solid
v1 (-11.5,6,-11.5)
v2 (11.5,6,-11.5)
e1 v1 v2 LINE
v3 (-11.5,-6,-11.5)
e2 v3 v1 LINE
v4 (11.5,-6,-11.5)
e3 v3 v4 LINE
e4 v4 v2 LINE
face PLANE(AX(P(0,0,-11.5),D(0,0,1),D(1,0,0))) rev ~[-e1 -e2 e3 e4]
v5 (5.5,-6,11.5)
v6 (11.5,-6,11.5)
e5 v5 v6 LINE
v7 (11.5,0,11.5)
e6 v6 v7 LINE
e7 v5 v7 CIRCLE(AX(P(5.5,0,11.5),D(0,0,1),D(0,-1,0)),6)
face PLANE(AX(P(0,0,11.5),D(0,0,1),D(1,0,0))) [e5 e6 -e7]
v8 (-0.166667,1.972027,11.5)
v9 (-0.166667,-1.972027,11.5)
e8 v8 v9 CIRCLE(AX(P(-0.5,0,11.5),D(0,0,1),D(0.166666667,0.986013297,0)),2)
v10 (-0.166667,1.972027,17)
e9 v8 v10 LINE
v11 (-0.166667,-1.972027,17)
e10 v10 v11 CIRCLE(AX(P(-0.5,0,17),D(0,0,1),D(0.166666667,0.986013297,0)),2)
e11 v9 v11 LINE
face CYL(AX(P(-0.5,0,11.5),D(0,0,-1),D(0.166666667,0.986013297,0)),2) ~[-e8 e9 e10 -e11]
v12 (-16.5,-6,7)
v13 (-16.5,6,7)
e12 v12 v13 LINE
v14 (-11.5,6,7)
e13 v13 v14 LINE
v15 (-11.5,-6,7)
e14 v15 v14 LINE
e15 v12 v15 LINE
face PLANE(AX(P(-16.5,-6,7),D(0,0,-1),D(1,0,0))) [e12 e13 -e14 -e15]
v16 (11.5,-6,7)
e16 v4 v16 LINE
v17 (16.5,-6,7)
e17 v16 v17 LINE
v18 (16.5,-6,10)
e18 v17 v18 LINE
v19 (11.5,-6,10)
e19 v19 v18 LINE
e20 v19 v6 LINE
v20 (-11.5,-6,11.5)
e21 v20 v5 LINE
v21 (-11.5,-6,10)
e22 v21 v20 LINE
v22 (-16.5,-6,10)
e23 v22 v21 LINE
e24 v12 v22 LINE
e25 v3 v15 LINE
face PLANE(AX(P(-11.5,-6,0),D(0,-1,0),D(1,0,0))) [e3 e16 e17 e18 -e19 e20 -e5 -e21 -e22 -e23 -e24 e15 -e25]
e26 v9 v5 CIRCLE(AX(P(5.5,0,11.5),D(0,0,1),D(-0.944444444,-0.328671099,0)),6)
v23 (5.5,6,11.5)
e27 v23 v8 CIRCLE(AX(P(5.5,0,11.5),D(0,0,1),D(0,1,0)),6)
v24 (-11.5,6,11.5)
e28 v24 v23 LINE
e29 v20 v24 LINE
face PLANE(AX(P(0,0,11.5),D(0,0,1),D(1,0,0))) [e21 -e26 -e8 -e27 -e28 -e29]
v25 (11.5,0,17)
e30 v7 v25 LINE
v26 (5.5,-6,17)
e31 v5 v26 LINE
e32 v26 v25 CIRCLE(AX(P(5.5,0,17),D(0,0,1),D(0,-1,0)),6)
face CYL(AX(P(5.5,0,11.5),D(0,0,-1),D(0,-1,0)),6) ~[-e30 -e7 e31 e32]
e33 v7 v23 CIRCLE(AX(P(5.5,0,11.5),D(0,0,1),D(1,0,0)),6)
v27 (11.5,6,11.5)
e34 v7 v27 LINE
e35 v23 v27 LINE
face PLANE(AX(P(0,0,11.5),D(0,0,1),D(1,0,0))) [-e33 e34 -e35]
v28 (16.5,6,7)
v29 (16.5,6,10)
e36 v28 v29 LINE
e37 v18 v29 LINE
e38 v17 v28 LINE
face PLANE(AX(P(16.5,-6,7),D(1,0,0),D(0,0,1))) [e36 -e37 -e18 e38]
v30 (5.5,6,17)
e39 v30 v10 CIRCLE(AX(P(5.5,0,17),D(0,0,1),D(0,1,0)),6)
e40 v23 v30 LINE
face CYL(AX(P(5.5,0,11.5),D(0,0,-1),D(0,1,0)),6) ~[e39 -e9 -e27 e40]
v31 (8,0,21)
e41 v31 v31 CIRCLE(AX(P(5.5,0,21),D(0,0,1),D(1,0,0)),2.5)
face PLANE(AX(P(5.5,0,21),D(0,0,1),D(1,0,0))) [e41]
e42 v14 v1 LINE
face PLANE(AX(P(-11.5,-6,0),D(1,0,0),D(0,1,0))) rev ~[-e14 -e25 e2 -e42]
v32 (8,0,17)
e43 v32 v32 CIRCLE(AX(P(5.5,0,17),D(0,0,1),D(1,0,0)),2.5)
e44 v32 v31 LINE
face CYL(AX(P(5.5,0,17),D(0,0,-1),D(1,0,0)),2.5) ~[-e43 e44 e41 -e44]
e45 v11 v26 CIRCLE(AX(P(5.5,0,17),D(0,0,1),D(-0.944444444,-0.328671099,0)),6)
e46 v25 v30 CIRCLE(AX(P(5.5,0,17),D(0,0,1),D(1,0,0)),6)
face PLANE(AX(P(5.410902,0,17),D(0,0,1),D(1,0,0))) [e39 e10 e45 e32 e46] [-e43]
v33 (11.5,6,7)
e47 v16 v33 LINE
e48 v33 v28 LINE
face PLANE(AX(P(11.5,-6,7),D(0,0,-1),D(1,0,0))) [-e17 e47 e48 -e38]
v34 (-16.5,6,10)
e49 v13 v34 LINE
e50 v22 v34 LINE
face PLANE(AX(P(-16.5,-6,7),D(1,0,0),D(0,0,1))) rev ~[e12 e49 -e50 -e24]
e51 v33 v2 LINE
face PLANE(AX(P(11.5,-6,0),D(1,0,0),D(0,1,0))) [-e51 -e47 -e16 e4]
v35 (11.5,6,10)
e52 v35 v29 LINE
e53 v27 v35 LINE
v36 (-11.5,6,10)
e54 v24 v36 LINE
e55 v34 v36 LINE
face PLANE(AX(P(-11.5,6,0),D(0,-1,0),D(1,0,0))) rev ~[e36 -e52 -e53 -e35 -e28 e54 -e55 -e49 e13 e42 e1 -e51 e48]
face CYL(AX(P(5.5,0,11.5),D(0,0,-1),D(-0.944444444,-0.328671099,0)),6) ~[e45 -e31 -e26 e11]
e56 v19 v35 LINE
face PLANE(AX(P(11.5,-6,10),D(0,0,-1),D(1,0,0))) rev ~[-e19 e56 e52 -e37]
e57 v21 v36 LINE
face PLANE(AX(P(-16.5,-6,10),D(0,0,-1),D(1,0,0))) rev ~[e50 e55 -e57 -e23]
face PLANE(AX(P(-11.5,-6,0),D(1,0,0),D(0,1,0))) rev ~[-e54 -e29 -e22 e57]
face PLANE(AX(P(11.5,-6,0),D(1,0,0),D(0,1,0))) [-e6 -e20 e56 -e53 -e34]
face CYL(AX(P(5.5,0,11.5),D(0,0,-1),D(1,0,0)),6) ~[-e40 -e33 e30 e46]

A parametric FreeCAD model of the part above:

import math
import FreeCAD as App
import Part
import Sketcher

V = App.Vector
Q = App.Units.Quantity


def add_polygon(sketch, points):
    """Adds a closed chain of lines whose ends are joined by coincident constraints."""
    first, n = sketch.GeometryCount, len(points)
    for a, b in zip(points, points[1:] + points[:1]):
        sketch.addGeometry(Part.LineSegment(App.Vector(*a, 0), App.Vector(*b, 0)), False)
    for i in range(n):
        sketch.addConstraint(Sketcher.Constraint("Coincident", first + i, 2, first + (i + 1) % n, 1))

doc = App.newDocument("Part")
body = doc.addObject("PartDesign::Body", "Body")

# Sketch on XY plane
sketch1 = body.newObject("Sketcher::SketchObject", "Sketch")
sketch1.AttachmentSupport = (doc.getObject("XY_Plane"), [""])
sketch1.MapMode = "FlatFace"
add_polygon(sketch1, [(-12, 6), (-12, -6), (12, -6), (12, 6)])  # lines 0-3
sketch1.addConstraint(Sketcher.Constraint("Vertical", 0))
sketch1.addConstraint(Sketcher.Constraint("Horizontal", 1))
sketch1.addConstraint(Sketcher.Constraint("Vertical", 2))
sketch1.addConstraint(Sketcher.Constraint("Horizontal", 3))
sketch1.addConstraint(Sketcher.Constraint("Symmetric", 0, 2, 2, 2, -1, 1))
sketch1.addConstraint(Sketcher.Constraint("DistanceX", 1, 1, 1, 2, Q("23 mm")))
sketch1.addConstraint(Sketcher.Constraint("DistanceY", 0, 2, 0, 1, Q("12 mm")))
pad1 = body.newObject("PartDesign::Pad", "Pad")
pad1.Profile = sketch1
pad1.Length = 23
pad1.Midplane = True

# Sketch on XY plane
sketch2 = body.newObject("Sketcher::SketchObject", "Sketch001")
sketch2.AttachmentSupport = (doc.getObject("XY_Plane"), [""])
sketch2.MapMode = "FlatFace"
sketch2.AttachmentOffset = App.Placement(V(0, 0, 11.5), App.Rotation())
sketch2.addGeometry(Part.ArcOfCircle(Part.Circle(V(5.5, 0, 0), V(0, 0, 1), 6), math.radians(-90), math.radians(0)), False)
sketch2.addGeometry(Part.ArcOfCircle(Part.Circle(V(5.5, 0, 0), V(0, 0, 1), 6), math.radians(0), math.radians(90)), False)
sketch2.addGeometry(Part.ArcOfCircle(Part.Circle(V(5.5, 0, 0), V(0, 0, 1), 6), math.radians(90), math.radians(161)), False)
sketch2.addGeometry(Part.ArcOfCircle(Part.Circle(V(-0.5, 0, 0), V(0, 0, 1), 2), math.radians(80), math.radians(280)), False)
sketch2.addGeometry(Part.ArcOfCircle(Part.Circle(V(5.5, 0, 0), V(0, 0, 1), 6), math.radians(-161), math.radians(-90)), False)
sketch2.addConstraint(Sketcher.Constraint("Tangent", 0, 2, 1, 1))
sketch2.addConstraint(Sketcher.Constraint("Tangent", 1, 2, 2, 1))
sketch2.addConstraint(Sketcher.Constraint("Coincident", 2, 2, 3, 1))
sketch2.addConstraint(Sketcher.Constraint("Coincident", 3, 2, 4, 1))
sketch2.addConstraint(Sketcher.Constraint("Tangent", 4, 2, 0, 1))
sketch2.addConstraint(Sketcher.Constraint("Coincident", 2, 3, 0, 3))
sketch2.addConstraint(Sketcher.Constraint("Equal", 2, 4))
sketch2.addConstraint(Sketcher.Constraint("Symmetric", 2, 2, 3, 2, -1))
sketch2.addConstraint(Sketcher.Constraint("PointOnObject", 0, 2, -1))
sketch2.addConstraint(Sketcher.Constraint("Vertical", 4, 3, 1, 2))
sketch2.addConstraint(Sketcher.Constraint("Vertical", 1, 2, 4, 2))
sketch2.addConstraint(Sketcher.Constraint("Radius", 0, Q("6 mm")))
sketch2.addConstraint(Sketcher.Constraint("Radius", 3, Q("2 mm")))
sketch2.addConstraint(Sketcher.Constraint("DistanceX", 3, 3, 0, 3, Q("6 mm")))
sketch2.addConstraint(Sketcher.Constraint("DistanceX", -1, 1, 0, 3, Q("5.5 mm")))
pad2 = body.newObject("PartDesign::Pad", "Pad001")
pad2.Profile = sketch2
pad2.Length = 5.5

# Sketch on XY plane
sketch3 = body.newObject("Sketcher::SketchObject", "Sketch002")
sketch3.AttachmentSupport = (doc.getObject("XY_Plane"), [""])
sketch3.MapMode = "FlatFace"
sketch3.AttachmentOffset = App.Placement(V(0, 0, 17), App.Rotation())
sketch3.addGeometry(Part.Circle(V(5.5, 0, 0), V(0, 0, 1), 2.5), False)
sketch3.addConstraint(Sketcher.Constraint("PointOnObject", 0, 3, -1))
sketch3.addConstraint(Sketcher.Constraint("Diameter", 0, Q("5 mm")))
sketch3.addConstraint(Sketcher.Constraint("DistanceX", -1, 1, 0, 3, Q("5.5 mm")))
pad3 = body.newObject("PartDesign::Pad", "Pad002")
pad3.Profile = sketch3
pad3.Length = 4

# Sketch on XZ plane
sketch4 = body.newObject("Sketcher::SketchObject", "Sketch003")
sketch4.AttachmentSupport = (doc.getObject("XZ_Plane"), [""])
sketch4.MapMode = "FlatFace"
sketch4.AttachmentOffset = App.Placement(V(0, 0, 6), App.Rotation())
add_polygon(sketch4, [(-16.5, 10), (-16.5, 7), (-11.5, 7), (-11.5, 10)])  # lines 0-3
add_polygon(sketch4, [(11.5, 10), (11.5, 7), (16.5, 7), (16.5, 10)])  # lines 4-7
sketch4.addConstraint(Sketcher.Constraint("Vertical", 0))
sketch4.addConstraint(Sketcher.Constraint("Horizontal", 1))
sketch4.addConstraint(Sketcher.Constraint("Vertical", 2))
sketch4.addConstraint(Sketcher.Constraint("Horizontal", 3))
sketch4.addConstraint(Sketcher.Constraint("Vertical", 4))
sketch4.addConstraint(Sketcher.Constraint("Horizontal", 5))
sketch4.addConstraint(Sketcher.Constraint("Vertical", 6))
sketch4.addConstraint(Sketcher.Constraint("Horizontal", 7))
sketch4.addConstraint(Sketcher.Constraint("Symmetric", 1, 2, 4, 2, -2))
sketch4.addConstraint(Sketcher.Constraint("Symmetric", 3, 2, 6, 2, -2))
sketch4.addConstraint(Sketcher.Constraint("DistanceX", 1, 1, 1, 2, Q("5 mm")))
sketch4.addConstraint(Sketcher.Constraint("DistanceY", 0, 2, 0, 1, Q("3 mm")))
sketch4.addConstraint(Sketcher.Constraint("DistanceY", -1, 1, 0, 2, Q("7 mm")))
sketch4.addConstraint(Sketcher.Constraint("DistanceX", 1, 2, 4, 2, Q("23 mm")))
pad4 = body.newObject("PartDesign::Pad", "Pad003")
pad4.Profile = sketch4
pad4.Length = 12
pad4.Reversed = True

doc.recompute()
